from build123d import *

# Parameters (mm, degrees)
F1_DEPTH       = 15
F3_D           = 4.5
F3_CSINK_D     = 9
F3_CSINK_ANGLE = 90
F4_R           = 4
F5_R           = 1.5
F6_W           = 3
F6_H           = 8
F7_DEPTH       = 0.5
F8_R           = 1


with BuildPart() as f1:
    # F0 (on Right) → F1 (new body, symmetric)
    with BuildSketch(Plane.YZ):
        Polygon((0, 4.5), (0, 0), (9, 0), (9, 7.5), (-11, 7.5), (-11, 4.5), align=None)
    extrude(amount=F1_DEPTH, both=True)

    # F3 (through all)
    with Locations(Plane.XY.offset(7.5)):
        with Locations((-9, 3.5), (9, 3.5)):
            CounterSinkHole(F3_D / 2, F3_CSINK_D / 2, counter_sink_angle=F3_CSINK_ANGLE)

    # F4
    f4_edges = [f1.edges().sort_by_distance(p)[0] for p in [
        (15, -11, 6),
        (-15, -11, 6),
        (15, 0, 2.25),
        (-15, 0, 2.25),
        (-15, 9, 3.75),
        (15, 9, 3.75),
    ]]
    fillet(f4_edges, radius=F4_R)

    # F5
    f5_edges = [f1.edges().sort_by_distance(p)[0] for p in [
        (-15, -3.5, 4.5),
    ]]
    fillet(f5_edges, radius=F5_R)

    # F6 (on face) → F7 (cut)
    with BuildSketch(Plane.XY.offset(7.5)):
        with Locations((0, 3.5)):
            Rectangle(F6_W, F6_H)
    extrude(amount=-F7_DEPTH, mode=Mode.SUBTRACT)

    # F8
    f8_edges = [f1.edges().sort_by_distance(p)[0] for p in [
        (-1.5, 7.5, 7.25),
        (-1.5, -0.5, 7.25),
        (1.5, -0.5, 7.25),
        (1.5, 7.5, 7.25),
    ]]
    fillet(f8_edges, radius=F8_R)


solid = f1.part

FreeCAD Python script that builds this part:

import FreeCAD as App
import Part
import Sketcher
from FreeCAD import Vector


def edges_at(feature, points):
    """Names of the edges that pass closest to the given points."""
    edges = feature.Shape.Edges
    near = lambda p: min(range(len(edges)), key=lambda i: edges[i].distToShape(Part.Vertex(*p))[0])
    return sorted({f"Edge{near(p) + 1}" for p in points})


def add_polygon(sketch, points):
    """Adds a closed chain of lines whose ends are joined by coincident constraints."""
    first, n = sketch.GeometryCount, len(points)
    for a, b in zip(points, points[1:] + points[:1]):
        sketch.addGeometry(Part.LineSegment(App.Vector(*a, 0), App.Vector(*b, 0)), False)
    for i in range(n):
        sketch.addConstraint(Sketcher.Constraint("Coincident", first + i, 2, first + (i + 1) % n, 1))

doc = App.newDocument("Part")
body = doc.addObject("PartDesign::Body", "Body")

# Sketch on YZ plane
sketch1 = body.newObject("Sketcher::SketchObject", "Sketch")
sketch1.AttachmentSupport = (doc.getObject("YZ_Plane"), [""])
sketch1.MapMode = "FlatFace"
add_polygon(sketch1, [(0, 4.5), (0, 0), (9, 0), (9, 7.5), (-11, 7.5), (-11, 4.5)])  # lines 0-5
sketch1.addConstraint([
    Sketcher.Constraint("Vertical", 0),
    Sketcher.Constraint("Horizontal", 1),
    Sketcher.Constraint("Vertical", 2),
    Sketcher.Constraint("Horizontal", 3),
    Sketcher.Constraint("Vertical", 4),
    Sketcher.Constraint("Horizontal", 5),
    Sketcher.Constraint("Coincident", 0, 2, -1, 1),
    Sketcher.Constraint("DistanceX", 1, 1, 1, 2, 9.0),
    Sketcher.Constraint("DistanceX", 3, 2, 3, 1, 20.0),
    Sketcher.Constraint("DistanceY", 4, 2, 4, 1, 3.0),
    Sketcher.Constraint("DistanceY", 0, 2, 0, 1, 4.5),
])
pad1 = body.newObject("PartDesign::Pad", "Pad")
pad1.Profile = sketch1
pad1.Length = 30
pad1.Midplane = True

# Sketch on XY plane
sketch2 = body.newObject("Sketcher::SketchObject", "Sketch001")
sketch2.AttachmentSupport = (doc.getObject("XY_Plane"), [""])
sketch2.MapMode = "FlatFace"
sketch2.AttachmentOffset = App.Placement(Vector(0, 0, 7.5), App.Rotation())
sketch2.addGeometry([
    Part.Circle(Vector(-9, 3.5, 0), Vector(0, 0, 1), 2.2),
    Part.Circle(Vector(9, 3.5, 0), Vector(0, 0, 1), 2.2),
], False)
sketch2.addConstraint([
    Sketcher.Constraint("Equal", 0, 1),
    Sketcher.Constraint("Symmetric", 0, 3, 1, 3, -2),
    Sketcher.Constraint("Diameter", 0, 4.5),
    Sketcher.Constraint("DistanceX", 0, 3, -1, 1, 9.0),
    Sketcher.Constraint("DistanceY", -1, 1, 0, 3, 3.5),
])
doc.recompute()
hole = body.newObject("PartDesign::Hole", "Hole")
hole.Profile = sketch2
hole.ThreadType = "None"
hole.Diameter = 4.5
hole.DepthType = "ThroughAll"
hole.HoleCutType = "Countersink"
hole.HoleCutDiameter = 9
hole.HoleCutCountersinkAngle = 90
doc.recompute()

fillet = body.newObject("PartDesign::Fillet", "Fillet")
fillet.Base = (hole, edges_at(hole, [
    (15, -11, 6),
    (-15, -11, 6),
    (15, 0, 2.25),
    (-15, 0, 2.25),
    (-15, 9, 3.75),
    (15, 9, 3.75),
]))
fillet.Radius = 4
doc.recompute()

fillet2 = body.newObject("PartDesign::Fillet", "Fillet001")
fillet2.Base = (fillet, edges_at(fillet, [(-15, -1.5, 4.5)]))
fillet2.Radius = 1.5

# Sketch on XY plane
sketch3 = body.newObject("Sketcher::SketchObject", "Sketch002")
sketch3.AttachmentSupport = (doc.getObject("XY_Plane"), [""])
sketch3.MapMode = "FlatFace"
sketch3.AttachmentOffset = App.Placement(Vector(0, 0, 7.5), App.Rotation())
add_polygon(sketch3, [(-1.5, 7.5), (-1.5, -0.5), (1.5, -0.5), (1.5, 7.5)])  # lines 0-3
sketch3.addConstraint([
    Sketcher.Constraint("Vertical", 0),
    Sketcher.Constraint("Horizontal", 1),
    Sketcher.Constraint("Vertical", 2),
    Sketcher.Constraint("Horizontal", 3),
    Sketcher.Constraint("DistanceX", 1, 1, 1, 2, 3.0),
    Sketcher.Constraint("DistanceY", 0, 2, 0, 1, 8.0),
    Sketcher.Constraint("DistanceX", 0, 2, -1, 1, 1.5),
    Sketcher.Constraint("DistanceY", 0, 2, -1, 1, 0.5),
])
pocket1 = body.newObject("PartDesign::Pocket", "Pocket")
pocket1.Profile = sketch3
pocket1.Length = 0.5
doc.recompute()

fillet3 = body.newObject("PartDesign::Fillet", "Fillet002")
fillet3.Base = (pocket1, edges_at(pocket1, [
    (-1.5, 7.5, 7.25),
    (-1.5, -0.5, 7.25),
    (1.5, -0.5, 7.25),
    (1.5, 7.5, 7.25),
]))
fillet3.Radius = 1

doc.recompute()
